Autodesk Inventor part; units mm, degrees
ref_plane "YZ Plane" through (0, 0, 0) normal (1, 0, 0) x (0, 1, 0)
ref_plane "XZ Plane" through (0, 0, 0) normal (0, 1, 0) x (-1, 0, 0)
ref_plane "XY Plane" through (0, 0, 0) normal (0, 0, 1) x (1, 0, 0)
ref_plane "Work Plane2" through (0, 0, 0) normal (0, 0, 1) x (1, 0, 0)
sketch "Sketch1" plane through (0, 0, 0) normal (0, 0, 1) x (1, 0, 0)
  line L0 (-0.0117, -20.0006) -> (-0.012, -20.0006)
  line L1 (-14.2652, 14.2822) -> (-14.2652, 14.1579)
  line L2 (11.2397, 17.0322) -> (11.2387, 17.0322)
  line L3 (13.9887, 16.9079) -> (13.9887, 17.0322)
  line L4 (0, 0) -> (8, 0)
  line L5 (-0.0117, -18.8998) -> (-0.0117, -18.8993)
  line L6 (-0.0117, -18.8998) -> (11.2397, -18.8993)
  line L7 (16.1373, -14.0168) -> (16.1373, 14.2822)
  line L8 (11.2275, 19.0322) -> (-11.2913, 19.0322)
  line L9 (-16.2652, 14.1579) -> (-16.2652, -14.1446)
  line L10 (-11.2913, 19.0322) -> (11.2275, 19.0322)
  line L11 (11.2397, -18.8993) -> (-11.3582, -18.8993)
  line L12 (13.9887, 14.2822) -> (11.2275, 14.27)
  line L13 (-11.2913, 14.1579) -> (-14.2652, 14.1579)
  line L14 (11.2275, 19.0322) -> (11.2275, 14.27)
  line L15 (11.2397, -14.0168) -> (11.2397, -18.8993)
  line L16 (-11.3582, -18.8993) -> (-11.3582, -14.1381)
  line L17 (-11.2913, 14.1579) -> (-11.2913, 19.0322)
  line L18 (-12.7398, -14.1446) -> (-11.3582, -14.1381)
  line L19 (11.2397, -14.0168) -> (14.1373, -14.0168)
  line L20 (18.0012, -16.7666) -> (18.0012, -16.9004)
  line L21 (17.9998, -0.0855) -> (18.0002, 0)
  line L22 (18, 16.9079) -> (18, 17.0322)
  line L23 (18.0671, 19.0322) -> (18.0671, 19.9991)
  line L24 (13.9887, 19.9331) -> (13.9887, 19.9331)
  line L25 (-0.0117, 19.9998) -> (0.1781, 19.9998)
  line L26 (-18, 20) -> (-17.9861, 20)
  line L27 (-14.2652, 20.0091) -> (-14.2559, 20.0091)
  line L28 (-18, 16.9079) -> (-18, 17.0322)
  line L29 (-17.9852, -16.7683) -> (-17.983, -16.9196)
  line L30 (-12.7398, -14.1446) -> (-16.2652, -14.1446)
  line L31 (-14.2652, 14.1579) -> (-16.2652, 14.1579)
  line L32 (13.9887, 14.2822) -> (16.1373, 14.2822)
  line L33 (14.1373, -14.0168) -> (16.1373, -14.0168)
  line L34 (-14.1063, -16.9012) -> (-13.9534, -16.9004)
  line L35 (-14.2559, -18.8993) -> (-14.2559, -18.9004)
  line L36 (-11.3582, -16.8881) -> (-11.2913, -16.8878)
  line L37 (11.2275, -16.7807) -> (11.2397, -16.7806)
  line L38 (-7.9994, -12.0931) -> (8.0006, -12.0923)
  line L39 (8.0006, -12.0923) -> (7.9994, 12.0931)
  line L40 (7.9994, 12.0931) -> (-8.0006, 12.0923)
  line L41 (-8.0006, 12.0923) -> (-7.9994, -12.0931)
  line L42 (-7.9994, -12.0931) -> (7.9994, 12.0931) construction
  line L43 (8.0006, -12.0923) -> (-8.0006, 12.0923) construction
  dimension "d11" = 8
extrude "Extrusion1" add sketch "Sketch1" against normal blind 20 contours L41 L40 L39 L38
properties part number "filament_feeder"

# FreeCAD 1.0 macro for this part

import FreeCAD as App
import Part
import Sketcher

V = App.Vector

doc = App.newDocument("Part")
body = doc.addObject("PartDesign::Body", "Body")

sketch1 = body.newObject("Sketcher::SketchObject", "Sketch")
sketch1.AttachmentSupport = (doc.getObject("XY_Plane"), [""])
sketch1.MapMode = "FlatFace"
sketch1.addGeometry([
    Part.LineSegment(V(-8, 12, 0), V(-8, -12, 0)),
    Part.LineSegment(V(-8, -12, 0), V(8, -12, 0)),
    Part.LineSegment(V(8, -12, 0), V(8, 12, 0)),
    Part.LineSegment(V(8, 12, 0), V(-8, 12, 0)),
], False)
sketch1.addConstraint([
    Sketcher.Constraint("Coincident", 0, 2, 1, 1),
    Sketcher.Constraint("Coincident", 1, 2, 2, 1),
    Sketcher.Constraint("Coincident", 2, 2, 3, 1),
    Sketcher.Constraint("Coincident", 3, 2, 0, 1),
    Sketcher.Constraint("Symmetric", 0, 2, 2, 2, -1, 1),
    Sketcher.Constraint("Symmetric", 1, 2, 3, 2, -1, 1),
    Sketcher.Constraint("Perpendicular", 0, 1),
    Sketcher.Constraint("Distance", 1, 16.0),
    Sketcher.Constraint("DistanceY", 0, 2, -1, 1, 12.093),
    Sketcher.Constraint("Distance", 0, 24.1854),
])
pad1 = body.newObject("PartDesign::Pad", "Pad")
pad1.Profile = sketch1
pad1.Length = 20
pad1.Reversed = True

doc.recompute()
